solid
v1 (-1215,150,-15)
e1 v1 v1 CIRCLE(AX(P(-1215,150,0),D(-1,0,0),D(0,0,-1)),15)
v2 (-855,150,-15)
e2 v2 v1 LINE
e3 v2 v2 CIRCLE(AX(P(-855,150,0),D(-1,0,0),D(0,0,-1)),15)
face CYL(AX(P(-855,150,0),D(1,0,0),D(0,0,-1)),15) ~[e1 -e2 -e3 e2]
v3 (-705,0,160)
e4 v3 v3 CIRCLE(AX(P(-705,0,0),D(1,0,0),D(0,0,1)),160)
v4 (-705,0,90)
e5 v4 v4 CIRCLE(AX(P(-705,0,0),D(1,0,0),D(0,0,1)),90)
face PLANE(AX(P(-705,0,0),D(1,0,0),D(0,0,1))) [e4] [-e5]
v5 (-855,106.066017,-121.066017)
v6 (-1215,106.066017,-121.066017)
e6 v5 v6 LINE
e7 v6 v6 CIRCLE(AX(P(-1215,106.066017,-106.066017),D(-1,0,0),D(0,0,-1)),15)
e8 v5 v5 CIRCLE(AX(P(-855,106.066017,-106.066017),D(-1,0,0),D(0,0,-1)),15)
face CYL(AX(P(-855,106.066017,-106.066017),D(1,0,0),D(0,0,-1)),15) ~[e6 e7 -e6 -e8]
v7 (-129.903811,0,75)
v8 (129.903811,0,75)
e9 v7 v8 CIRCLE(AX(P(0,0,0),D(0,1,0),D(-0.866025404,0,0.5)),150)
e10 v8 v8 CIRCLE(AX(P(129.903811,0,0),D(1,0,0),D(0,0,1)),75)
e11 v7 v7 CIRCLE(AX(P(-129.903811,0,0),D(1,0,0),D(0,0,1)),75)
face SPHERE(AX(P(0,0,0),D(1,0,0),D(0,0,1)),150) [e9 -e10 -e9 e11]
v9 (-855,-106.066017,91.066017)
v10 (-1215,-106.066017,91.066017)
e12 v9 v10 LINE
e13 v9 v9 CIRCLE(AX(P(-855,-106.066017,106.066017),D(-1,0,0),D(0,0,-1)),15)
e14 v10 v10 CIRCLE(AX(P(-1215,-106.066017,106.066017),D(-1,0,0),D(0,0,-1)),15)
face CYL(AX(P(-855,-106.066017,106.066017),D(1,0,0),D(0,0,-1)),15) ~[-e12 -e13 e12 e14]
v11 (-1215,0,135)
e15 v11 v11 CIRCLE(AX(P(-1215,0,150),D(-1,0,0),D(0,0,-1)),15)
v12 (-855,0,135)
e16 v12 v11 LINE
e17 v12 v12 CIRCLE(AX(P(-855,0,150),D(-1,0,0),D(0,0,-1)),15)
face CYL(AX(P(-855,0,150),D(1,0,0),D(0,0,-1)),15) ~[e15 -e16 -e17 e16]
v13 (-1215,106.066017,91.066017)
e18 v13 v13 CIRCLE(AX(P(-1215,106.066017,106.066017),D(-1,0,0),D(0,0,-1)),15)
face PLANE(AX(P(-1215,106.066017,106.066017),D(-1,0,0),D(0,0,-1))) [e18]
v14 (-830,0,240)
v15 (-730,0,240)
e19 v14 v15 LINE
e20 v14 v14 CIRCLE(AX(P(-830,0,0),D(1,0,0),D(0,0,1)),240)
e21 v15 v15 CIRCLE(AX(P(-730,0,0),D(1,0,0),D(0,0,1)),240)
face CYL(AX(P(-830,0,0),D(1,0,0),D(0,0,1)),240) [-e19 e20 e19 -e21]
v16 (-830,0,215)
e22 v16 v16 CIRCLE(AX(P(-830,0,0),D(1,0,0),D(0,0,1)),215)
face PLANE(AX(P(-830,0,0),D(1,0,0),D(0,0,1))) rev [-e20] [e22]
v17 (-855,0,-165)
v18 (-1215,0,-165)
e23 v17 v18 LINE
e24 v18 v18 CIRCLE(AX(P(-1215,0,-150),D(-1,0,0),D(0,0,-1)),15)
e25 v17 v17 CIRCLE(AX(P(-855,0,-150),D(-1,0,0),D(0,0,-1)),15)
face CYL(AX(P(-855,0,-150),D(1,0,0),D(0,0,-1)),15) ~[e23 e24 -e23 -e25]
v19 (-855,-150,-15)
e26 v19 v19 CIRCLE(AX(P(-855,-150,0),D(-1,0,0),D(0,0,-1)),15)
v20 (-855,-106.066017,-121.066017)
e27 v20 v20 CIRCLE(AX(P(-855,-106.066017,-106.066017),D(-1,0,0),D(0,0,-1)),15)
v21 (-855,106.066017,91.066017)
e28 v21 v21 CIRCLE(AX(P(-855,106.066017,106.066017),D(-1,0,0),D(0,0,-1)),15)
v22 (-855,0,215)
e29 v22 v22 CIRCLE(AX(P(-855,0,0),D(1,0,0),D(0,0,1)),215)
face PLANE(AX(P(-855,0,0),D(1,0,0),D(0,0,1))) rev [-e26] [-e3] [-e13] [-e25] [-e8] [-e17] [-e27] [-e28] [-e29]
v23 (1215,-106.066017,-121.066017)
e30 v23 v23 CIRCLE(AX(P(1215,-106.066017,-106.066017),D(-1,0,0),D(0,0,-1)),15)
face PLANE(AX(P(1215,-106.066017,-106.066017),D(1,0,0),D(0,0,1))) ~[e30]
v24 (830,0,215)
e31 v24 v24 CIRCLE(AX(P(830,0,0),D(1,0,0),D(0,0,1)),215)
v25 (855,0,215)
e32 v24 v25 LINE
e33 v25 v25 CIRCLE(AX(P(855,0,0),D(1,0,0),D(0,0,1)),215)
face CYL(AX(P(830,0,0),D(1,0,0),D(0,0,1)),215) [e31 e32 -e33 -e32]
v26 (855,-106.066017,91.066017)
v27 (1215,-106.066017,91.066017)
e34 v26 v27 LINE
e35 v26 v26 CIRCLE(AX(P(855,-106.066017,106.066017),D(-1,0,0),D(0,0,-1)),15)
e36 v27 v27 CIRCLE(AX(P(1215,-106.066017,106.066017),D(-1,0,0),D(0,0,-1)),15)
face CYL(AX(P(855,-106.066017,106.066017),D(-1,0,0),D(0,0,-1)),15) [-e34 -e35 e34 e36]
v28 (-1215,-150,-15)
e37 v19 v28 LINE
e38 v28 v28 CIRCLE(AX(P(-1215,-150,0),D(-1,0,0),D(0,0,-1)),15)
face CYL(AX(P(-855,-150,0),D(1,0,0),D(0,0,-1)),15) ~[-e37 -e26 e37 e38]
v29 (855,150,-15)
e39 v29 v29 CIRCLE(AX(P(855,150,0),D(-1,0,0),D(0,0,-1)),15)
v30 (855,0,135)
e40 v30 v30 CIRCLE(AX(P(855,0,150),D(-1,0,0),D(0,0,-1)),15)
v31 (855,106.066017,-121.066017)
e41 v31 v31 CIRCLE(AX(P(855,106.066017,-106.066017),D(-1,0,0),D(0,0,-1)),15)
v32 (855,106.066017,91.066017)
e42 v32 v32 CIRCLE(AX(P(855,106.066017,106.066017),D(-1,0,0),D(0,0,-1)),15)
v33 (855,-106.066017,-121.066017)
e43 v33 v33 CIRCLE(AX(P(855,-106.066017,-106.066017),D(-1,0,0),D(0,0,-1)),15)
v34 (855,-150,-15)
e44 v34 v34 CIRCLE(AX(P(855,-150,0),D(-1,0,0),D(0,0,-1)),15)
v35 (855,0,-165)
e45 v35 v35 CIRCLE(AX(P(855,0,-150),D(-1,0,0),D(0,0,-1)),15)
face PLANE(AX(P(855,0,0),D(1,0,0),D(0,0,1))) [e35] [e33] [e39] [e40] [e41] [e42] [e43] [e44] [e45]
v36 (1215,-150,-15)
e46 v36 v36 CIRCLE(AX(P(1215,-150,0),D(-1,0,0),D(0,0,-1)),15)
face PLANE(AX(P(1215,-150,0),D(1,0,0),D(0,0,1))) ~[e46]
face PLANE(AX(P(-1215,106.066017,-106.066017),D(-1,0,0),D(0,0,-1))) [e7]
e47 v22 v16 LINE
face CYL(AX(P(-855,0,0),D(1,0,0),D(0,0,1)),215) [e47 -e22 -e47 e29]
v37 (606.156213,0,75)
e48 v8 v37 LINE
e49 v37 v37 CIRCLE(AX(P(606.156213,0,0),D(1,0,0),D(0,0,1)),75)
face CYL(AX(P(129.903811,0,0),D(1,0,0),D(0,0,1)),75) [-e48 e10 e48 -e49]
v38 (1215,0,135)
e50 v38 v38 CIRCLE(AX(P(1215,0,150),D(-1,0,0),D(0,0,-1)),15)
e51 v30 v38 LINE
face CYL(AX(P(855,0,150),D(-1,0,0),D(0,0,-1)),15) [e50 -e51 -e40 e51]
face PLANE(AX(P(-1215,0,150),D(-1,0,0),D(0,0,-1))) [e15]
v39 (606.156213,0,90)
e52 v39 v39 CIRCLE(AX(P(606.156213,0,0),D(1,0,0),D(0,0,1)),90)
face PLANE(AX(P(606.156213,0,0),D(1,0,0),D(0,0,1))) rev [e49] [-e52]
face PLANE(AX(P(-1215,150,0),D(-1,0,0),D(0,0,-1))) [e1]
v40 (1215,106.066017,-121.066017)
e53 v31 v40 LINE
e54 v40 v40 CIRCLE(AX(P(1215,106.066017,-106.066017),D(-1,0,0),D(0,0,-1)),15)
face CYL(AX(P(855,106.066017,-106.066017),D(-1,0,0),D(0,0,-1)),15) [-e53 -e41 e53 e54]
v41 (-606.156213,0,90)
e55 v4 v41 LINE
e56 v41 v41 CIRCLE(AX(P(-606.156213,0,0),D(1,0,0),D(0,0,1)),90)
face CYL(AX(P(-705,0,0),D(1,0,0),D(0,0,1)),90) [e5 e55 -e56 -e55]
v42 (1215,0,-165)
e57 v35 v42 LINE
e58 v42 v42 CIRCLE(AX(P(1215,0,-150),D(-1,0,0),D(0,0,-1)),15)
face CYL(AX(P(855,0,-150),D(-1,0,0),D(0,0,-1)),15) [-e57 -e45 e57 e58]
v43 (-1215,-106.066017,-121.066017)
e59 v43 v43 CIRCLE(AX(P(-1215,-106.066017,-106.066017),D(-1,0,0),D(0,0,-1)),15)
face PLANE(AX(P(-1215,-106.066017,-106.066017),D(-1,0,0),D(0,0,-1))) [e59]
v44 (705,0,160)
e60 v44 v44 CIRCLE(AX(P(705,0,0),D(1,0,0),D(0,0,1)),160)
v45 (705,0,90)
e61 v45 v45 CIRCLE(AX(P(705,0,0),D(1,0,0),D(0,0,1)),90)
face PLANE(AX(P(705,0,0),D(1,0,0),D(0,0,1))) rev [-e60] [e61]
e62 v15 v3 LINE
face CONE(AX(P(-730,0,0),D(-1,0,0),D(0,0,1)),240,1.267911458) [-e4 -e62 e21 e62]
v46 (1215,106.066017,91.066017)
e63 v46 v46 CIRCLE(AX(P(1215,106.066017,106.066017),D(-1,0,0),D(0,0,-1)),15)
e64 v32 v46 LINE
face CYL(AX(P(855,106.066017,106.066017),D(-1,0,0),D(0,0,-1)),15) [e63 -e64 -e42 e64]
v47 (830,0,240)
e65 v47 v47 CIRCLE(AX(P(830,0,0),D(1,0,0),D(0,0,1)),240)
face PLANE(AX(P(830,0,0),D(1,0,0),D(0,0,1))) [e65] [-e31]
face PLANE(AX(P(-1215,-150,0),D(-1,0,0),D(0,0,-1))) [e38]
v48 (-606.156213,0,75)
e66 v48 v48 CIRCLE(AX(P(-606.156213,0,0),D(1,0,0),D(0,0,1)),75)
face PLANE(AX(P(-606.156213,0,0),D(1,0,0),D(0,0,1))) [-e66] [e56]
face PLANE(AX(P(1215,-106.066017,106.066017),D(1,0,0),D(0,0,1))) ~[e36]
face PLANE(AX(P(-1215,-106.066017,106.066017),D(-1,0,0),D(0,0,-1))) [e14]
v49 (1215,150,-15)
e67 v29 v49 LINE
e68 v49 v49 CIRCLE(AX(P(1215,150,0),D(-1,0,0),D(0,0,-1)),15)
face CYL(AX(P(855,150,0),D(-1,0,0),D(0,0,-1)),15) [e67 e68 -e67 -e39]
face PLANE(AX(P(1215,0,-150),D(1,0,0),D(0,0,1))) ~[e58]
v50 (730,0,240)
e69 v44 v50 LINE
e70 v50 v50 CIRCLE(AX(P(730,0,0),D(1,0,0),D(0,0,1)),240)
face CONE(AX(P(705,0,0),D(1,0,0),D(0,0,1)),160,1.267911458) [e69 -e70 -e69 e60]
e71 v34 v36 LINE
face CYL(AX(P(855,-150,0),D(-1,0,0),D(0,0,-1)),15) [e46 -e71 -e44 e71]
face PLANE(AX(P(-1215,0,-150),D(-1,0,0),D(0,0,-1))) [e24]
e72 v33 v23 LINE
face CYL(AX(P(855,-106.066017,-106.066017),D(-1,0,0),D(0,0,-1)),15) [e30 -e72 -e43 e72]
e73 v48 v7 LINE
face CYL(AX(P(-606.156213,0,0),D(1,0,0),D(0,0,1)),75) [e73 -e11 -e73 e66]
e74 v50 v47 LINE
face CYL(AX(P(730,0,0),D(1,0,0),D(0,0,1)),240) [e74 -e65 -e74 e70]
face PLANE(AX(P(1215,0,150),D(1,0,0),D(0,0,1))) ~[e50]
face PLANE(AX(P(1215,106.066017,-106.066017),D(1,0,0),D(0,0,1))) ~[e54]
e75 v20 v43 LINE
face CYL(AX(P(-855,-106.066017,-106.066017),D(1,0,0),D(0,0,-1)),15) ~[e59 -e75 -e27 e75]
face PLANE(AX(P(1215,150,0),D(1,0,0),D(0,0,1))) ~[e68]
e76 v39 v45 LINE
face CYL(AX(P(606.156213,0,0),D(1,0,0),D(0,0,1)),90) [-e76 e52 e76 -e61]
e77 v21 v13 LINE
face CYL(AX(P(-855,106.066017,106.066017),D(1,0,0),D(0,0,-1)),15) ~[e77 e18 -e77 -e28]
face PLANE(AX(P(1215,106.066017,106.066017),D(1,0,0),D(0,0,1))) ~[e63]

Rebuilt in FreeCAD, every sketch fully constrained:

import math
import FreeCAD as App
import Part
import Sketcher

doc = App.newDocument("Part")
body = doc.addObject("PartDesign::Body", "Body")

# Sketch on XY plane
sketch1 = body.newObject("Sketcher::SketchObject", "Sketch")
sketch1.AttachmentSupport = (doc.getObject("XY_Plane"), [""])
sketch1.MapMode = "FlatFace"
sketch1.addGeometry([
    Part.LineSegment(App.Vector(-855, 215, 0), App.Vector(-855, 0, 0)),  # 0
    Part.LineSegment(App.Vector(-855, 0, 0), App.Vector(855, 0, 0)),  # 1
    Part.LineSegment(App.Vector(855, 0, 0), App.Vector(855, 215, 0)),  # 2
    Part.LineSegment(App.Vector(855, 215, 0), App.Vector(830, 215, 0)),  # 3
    Part.LineSegment(App.Vector(830, 215, 0), App.Vector(830, 240, 0)),  # 4
    Part.LineSegment(App.Vector(830, 240, 0), App.Vector(730, 240, 0)),  # 5
    Part.LineSegment(App.Vector(730, 240, 0), App.Vector(705, 160, 0)),  # 6
    Part.LineSegment(App.Vector(705, 160, 0), App.Vector(705, 90, 0)),  # 7
    Part.LineSegment(App.Vector(705, 90, 0), App.Vector(606, 90, 0)),  # 8
    Part.LineSegment(App.Vector(606, 90, 0), App.Vector(606, 75, 0)),  # 9
    Part.LineSegment(App.Vector(606, 75, 0), App.Vector(130, 75, 0)),  # 10
    Part.ArcOfCircle(Part.Circle(App.Vector(0, 0, 0), App.Vector(0, 0, 1), 150), math.radians(30), math.radians(150)),  # 11
    Part.LineSegment(App.Vector(-130, 75, 0), App.Vector(-606, 75, 0)),  # 12
    Part.LineSegment(App.Vector(-606, 75, 0), App.Vector(-606, 90, 0)),  # 13
    Part.LineSegment(App.Vector(-606, 90, 0), App.Vector(-705, 90, 0)),  # 14
    Part.LineSegment(App.Vector(-705, 90, 0), App.Vector(-705, 160, 0)),  # 15
    Part.LineSegment(App.Vector(-705, 160, 0), App.Vector(-730, 240, 0)),  # 16
    Part.LineSegment(App.Vector(-730, 240, 0), App.Vector(-830, 240, 0)),  # 17
    Part.LineSegment(App.Vector(-830, 240, 0), App.Vector(-830, 215, 0)),  # 18
    Part.LineSegment(App.Vector(-830, 215, 0), App.Vector(-855, 215, 0)),  # 19
], False)
sketch1.addConstraint([
    Sketcher.Constraint("Coincident", 0, 2, 1, 1),
    Sketcher.Constraint("Coincident", 1, 2, 2, 1),
    Sketcher.Constraint("Coincident", 2, 2, 3, 1),
    Sketcher.Constraint("Coincident", 3, 2, 4, 1),
    Sketcher.Constraint("Coincident", 4, 2, 5, 1),
    Sketcher.Constraint("Coincident", 5, 2, 6, 1),
    Sketcher.Constraint("Coincident", 6, 2, 7, 1),
    Sketcher.Constraint("Coincident", 7, 2, 8, 1),
    Sketcher.Constraint("Coincident", 8, 2, 9, 1),
    Sketcher.Constraint("Coincident", 9, 2, 10, 1),
    Sketcher.Constraint("Coincident", 10, 2, 11, 1),
    Sketcher.Constraint("Coincident", 11, 2, 12, 1),
    Sketcher.Constraint("Coincident", 12, 2, 13, 1),
    Sketcher.Constraint("Coincident", 13, 2, 14, 1),
    Sketcher.Constraint("Coincident", 14, 2, 15, 1),
    Sketcher.Constraint("Coincident", 15, 2, 16, 1),
    Sketcher.Constraint("Coincident", 16, 2, 17, 1),
    Sketcher.Constraint("Coincident", 17, 2, 18, 1),
    Sketcher.Constraint("Coincident", 18, 2, 19, 1),
    Sketcher.Constraint("Coincident", 19, 2, 0, 1),
    Sketcher.Constraint("Vertical", 0),
    Sketcher.Constraint("Horizontal", 1),
    Sketcher.Constraint("Vertical", 2),
    Sketcher.Constraint("Horizontal", 3),
    Sketcher.Constraint("Vertical", 4),
    Sketcher.Constraint("Horizontal", 5),
    Sketcher.Constraint("Vertical", 7),
    Sketcher.Constraint("Horizontal", 8),
    Sketcher.Constraint("Vertical", 9),
    Sketcher.Constraint("Horizontal", 10),
    Sketcher.Constraint("Horizontal", 12),
    Sketcher.Constraint("Vertical", 13),
    Sketcher.Constraint("Horizontal", 14),
    Sketcher.Constraint("Vertical", 15),
    Sketcher.Constraint("Horizontal", 17),
    Sketcher.Constraint("Vertical", 18),
    Sketcher.Constraint("Horizontal", 19),
    Sketcher.Constraint("Coincident", 11, 3, -1, 1),
    Sketcher.Constraint("Symmetric", 0, 2, 1, 2, -1, 1),
    Sketcher.Constraint("Symmetric", 9, 2, 12, 2, -2),
    Sketcher.Constraint("Symmetric", 7, 2, 14, 2, -2),
    Sketcher.Constraint("Symmetric", 5, 2, 16, 2, -2),
    Sketcher.Constraint("Symmetric", 3, 2, 18, 2, -2),
    Sketcher.Constraint("Horizontal", 6, 2, 15, 2),
    Sketcher.Constraint("Equal", 19, 4),
    Sketcher.Constraint("Radius", 11, 150.0),
    Sketcher.Constraint("DistanceX", 1, 1, 1, 2, 1710.0),
    Sketcher.Constraint("DistanceX", 3, 2, 3, 1, 25.0),
    Sketcher.Constraint("DistanceX", 5, 2, 5, 1, 100.0),
    Sketcher.Constraint("DistanceY", 0, 2, 0, 1, 215.0),
    Sketcher.Constraint("DistanceY", 7, 2, 7, 1, 70.0),
    Sketcher.Constraint("DistanceY", 9, 2, 9, 1, 15.0),
    Sketcher.Constraint("DistanceX", -1, 1, 6, 2, 705.0),
    Sketcher.Constraint("DistanceY", -1, 1, 6, 2, 160.0),
    Sketcher.Constraint("DistanceX", 8, 2, 8, 1, 98.843787),
])
revolution = body.newObject("PartDesign::Revolution", "Revolution")
revolution.Profile = sketch1
revolution.ReferenceAxis = (sketch1, ["H_Axis"])
revolution.Angle = 360

# Sketch on YZ plane
sketch2 = body.newObject("Sketcher::SketchObject", "Sketch001")
sketch2.AttachmentSupport = (doc.getObject("YZ_Plane"), [""])
sketch2.MapMode = "FlatFace"
sketch2.AttachmentOffset = App.Placement(App.Vector(0, 0, -855), App.Rotation())
sketch2.addGeometry([
    Part.Circle(App.Vector(150, 0, 0), App.Vector(0, 0, 1), 15),  # 0
    Part.Circle(App.Vector(106, 106, 0), App.Vector(0, 0, 1), 15),  # 1
    Part.Circle(App.Vector(0, 150, 0), App.Vector(0, 0, 1), 15),  # 2
    Part.Circle(App.Vector(-106, 106, 0), App.Vector(0, 0, 1), 15),  # 3
    Part.Circle(App.Vector(-150, 0, 0), App.Vector(0, 0, 1), 15),  # 4
    Part.Circle(App.Vector(-106, -106, 0), App.Vector(0, 0, 1), 15),  # 5
    Part.Circle(App.Vector(0, -150, 0), App.Vector(0, 0, 1), 15),  # 6
    Part.Circle(App.Vector(106, -106, 0), App.Vector(0, 0, 1), 15),  # 7
], False)
sketch2.addConstraint([
    Sketcher.Constraint("Equal", 0, 1),
    Sketcher.Constraint("Equal", 1, 2),
    Sketcher.Constraint("Equal", 2, 3),
    Sketcher.Constraint("Equal", 3, 4),
    Sketcher.Constraint("Equal", 4, 5),
    Sketcher.Constraint("Equal", 5, 6),
    Sketcher.Constraint("Equal", 6, 7),
    Sketcher.Constraint("Symmetric", 0, 3, 4, 3, -1, 1),
    Sketcher.Constraint("Symmetric", 1, 3, 5, 3, -1, 1),
    Sketcher.Constraint("Symmetric", 2, 3, 6, 3, -1, 1),
    Sketcher.Constraint("Symmetric", 3, 3, 7, 3, -1, 1),
    Sketcher.Constraint("Symmetric", 1, 3, 3, 3, -2),
    Sketcher.Constraint("PointOnObject", 0, 3, -1),
    Sketcher.Constraint("PointOnObject", 2, 3, -2),
    Sketcher.Constraint("Diameter", 0, 30.0),
    Sketcher.Constraint("DistanceX", -1, 1, 0, 3, 150.0),
    Sketcher.Constraint("DistanceY", -1, 1, 2, 3, 150.0),
    Sketcher.Constraint("DistanceX", -1, 1, 1, 3, 106.066017),
    Sketcher.Constraint("DistanceY", -1, 1, 1, 3, 106.066017),
])
pad1 = body.newObject("PartDesign::Pad", "Pad")
pad1.Profile = sketch2
pad1.Length = 360
pad1.Reversed = True
doc.recompute()

mirrored = body.newObject("PartDesign::Mirrored", "Mirrored")
mirrored.Originals = [pad1]
mirrored.MirrorPlane = (doc.getObject("YZ_Plane"), [""])
body.Tip = mirrored

doc.recompute()
